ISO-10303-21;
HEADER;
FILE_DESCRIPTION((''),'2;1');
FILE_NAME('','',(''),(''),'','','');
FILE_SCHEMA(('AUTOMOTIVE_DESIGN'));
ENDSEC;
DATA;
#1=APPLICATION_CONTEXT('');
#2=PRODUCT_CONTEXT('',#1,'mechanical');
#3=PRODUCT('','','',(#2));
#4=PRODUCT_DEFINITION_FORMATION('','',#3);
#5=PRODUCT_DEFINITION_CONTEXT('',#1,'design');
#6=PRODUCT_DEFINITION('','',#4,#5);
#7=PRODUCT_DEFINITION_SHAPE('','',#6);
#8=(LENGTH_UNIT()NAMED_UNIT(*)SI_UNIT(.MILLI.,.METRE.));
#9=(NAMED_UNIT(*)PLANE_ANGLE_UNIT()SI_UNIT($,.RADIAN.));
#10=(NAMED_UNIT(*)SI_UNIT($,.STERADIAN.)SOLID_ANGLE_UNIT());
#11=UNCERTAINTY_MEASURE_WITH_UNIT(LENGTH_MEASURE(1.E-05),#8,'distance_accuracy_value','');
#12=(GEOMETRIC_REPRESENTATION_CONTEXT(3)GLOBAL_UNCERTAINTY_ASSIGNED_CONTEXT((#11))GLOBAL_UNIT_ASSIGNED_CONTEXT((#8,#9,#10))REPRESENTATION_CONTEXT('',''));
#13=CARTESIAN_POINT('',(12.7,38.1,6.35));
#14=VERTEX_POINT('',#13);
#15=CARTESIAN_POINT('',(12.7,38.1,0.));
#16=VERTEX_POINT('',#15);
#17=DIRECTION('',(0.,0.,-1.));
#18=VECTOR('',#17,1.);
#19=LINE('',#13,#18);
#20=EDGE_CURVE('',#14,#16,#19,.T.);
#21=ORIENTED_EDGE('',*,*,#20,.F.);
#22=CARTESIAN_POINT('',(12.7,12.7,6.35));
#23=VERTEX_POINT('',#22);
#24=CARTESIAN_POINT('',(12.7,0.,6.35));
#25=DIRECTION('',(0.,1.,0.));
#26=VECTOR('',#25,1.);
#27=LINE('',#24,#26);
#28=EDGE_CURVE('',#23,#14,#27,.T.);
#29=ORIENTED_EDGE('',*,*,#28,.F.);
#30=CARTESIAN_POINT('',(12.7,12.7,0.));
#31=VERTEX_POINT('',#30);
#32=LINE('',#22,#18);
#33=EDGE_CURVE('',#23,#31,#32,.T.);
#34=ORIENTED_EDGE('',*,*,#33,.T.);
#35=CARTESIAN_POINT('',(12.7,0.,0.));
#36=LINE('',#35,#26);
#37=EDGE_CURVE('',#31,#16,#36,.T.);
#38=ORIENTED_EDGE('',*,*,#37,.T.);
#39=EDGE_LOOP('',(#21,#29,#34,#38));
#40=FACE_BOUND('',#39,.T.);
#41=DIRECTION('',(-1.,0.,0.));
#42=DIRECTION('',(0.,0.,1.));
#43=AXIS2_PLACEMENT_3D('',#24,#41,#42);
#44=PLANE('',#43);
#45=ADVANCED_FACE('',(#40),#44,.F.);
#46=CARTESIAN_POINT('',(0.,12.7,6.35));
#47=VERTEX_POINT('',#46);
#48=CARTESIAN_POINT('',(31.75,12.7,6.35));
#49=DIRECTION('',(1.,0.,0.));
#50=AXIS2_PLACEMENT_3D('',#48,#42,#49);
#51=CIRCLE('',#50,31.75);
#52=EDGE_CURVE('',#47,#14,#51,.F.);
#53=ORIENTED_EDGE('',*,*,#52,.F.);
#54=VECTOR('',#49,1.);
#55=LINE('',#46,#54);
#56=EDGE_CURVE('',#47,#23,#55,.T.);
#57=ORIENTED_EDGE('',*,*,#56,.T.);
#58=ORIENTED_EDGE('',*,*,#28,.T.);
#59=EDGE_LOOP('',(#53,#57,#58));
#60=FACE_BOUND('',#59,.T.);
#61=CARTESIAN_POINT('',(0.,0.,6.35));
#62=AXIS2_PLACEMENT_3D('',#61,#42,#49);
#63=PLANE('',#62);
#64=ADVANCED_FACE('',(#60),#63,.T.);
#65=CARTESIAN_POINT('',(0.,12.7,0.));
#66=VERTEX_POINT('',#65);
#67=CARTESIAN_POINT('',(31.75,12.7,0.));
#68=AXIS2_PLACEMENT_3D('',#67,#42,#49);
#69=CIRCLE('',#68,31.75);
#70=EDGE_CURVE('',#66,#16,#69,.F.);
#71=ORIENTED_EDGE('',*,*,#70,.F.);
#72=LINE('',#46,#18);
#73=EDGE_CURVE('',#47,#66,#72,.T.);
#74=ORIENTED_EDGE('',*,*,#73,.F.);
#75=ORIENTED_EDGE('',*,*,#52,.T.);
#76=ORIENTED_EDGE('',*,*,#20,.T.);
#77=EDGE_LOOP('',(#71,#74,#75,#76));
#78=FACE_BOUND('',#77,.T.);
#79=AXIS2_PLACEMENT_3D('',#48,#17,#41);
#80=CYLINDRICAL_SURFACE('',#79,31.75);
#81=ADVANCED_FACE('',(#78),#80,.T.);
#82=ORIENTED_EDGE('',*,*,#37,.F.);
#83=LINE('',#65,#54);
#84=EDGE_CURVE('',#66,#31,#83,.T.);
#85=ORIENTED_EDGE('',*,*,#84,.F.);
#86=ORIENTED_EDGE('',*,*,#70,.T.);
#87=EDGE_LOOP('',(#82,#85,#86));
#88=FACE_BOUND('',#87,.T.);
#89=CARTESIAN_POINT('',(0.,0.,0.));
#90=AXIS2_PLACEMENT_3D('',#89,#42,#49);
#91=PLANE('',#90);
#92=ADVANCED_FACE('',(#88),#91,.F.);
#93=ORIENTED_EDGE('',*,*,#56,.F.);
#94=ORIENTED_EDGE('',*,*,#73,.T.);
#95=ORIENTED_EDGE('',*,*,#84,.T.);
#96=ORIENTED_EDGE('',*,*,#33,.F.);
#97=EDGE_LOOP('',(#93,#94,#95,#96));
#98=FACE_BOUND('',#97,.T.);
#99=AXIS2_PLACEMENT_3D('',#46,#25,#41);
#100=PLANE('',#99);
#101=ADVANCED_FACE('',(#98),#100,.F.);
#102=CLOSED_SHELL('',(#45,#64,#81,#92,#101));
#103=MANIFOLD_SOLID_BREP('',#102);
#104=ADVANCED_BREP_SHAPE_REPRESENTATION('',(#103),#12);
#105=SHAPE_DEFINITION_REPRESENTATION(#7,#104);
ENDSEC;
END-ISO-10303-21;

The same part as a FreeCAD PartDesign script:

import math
import FreeCAD as App
import Part
import Sketcher

V = App.Vector
Q = App.Units.Quantity

doc = App.newDocument("Part")
body = doc.addObject("PartDesign::Body", "Body")

sketch1 = body.newObject("Sketcher::SketchObject", "Sketch")
sketch1.AttachmentSupport = (doc.getObject("XY_Plane"), [""])
sketch1.MapMode = "FlatFace"
sketch1.addGeometry([
    Part.LineSegment(V(0, 12.7, 0), V(12.7, 12.7, 0)),
    Part.LineSegment(V(12.7, 12.7, 0), V(12.7, 38.1, 0)),
    Part.ArcOfCircle(Part.Circle(V(31.75, 12.7, 0), V(0, 0, 1), 31.75), math.radians(126.869898), math.radians(180)),
], False)
sketch1.addConstraint([
    Sketcher.Constraint("Coincident", 0, 2, 1, 1),
    Sketcher.Constraint("Coincident", 1, 2, 2, 1),
    Sketcher.Constraint("Coincident", 2, 2, 0, 1),
    Sketcher.Constraint("Horizontal", 0),
    Sketcher.Constraint("Vertical", 1),
    Sketcher.Constraint("PointOnObject", 2, 2, -2),
    Sketcher.Constraint("Horizontal", 2, 3, 0, 2),
    Sketcher.Constraint("DistanceY", 1, 1, 1, 2, Q("1 in")),
    Sketcher.Constraint("Radius", 2, Q("1.25 in")),
    Sketcher.Constraint("DistanceY", -1, 1, 2, 3, Q("0.5 in")),
])
pad1 = body.newObject("PartDesign::Pad", "Pad")
pad1.Profile = sketch1
pad1.Length = Q("0.25 in")

doc.recompute()
